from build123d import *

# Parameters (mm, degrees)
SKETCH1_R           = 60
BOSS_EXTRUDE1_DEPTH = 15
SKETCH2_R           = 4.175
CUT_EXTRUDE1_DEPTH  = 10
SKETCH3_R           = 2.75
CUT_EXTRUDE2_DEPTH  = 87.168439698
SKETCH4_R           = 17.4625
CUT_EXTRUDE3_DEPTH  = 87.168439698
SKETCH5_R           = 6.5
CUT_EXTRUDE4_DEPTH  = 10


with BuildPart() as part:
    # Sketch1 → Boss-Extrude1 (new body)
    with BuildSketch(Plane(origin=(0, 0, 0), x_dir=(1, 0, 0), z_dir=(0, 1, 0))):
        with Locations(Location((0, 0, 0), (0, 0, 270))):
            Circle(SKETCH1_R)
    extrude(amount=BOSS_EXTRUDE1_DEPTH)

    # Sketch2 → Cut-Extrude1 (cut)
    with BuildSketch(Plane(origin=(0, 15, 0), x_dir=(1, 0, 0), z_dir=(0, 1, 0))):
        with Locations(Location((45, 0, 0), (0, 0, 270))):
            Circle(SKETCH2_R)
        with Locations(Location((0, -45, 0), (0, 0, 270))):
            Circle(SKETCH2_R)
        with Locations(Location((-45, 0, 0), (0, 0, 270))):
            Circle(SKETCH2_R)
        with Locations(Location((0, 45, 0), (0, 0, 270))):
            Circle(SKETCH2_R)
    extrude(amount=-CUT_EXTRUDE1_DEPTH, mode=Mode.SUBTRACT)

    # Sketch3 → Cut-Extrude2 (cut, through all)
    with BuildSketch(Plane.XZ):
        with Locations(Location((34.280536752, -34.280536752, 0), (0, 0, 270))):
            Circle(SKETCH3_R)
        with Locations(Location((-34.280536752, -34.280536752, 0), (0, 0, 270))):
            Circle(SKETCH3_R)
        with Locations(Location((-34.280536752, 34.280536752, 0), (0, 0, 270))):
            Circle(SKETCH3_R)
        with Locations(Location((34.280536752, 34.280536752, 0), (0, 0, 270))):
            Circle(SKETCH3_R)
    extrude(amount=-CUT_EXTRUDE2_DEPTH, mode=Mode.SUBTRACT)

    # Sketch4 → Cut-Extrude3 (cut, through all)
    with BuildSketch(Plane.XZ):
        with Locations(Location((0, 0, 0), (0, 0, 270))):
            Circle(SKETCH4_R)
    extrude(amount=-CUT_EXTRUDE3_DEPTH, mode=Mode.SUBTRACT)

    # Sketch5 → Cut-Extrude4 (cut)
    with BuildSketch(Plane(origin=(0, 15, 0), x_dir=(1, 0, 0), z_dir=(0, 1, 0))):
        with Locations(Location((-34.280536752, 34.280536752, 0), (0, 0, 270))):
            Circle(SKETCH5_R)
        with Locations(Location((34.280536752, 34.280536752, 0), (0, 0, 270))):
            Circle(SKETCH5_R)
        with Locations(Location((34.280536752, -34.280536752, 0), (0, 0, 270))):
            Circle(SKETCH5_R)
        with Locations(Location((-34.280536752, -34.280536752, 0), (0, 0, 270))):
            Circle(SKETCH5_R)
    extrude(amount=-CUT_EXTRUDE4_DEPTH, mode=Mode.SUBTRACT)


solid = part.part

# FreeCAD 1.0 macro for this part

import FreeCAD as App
import Part
import Sketcher

doc = App.newDocument("Part")
body = doc.addObject("PartDesign::Body", "Body")

# Sketch on XZ plane
sketch1 = body.newObject("Sketcher::SketchObject", "Sketch")
sketch1.AttachmentSupport = (doc.getObject("XZ_Plane"), [""])
sketch1.MapMode = "FlatFace"
sketch1.addGeometry(Part.Circle(App.Vector(0, 0, 0), App.Vector(0, 0, 1), 60), False)
sketch1.addConstraint(Sketcher.Constraint("Coincident", 0, 3, -1, 1))
sketch1.addConstraint(Sketcher.Constraint("Diameter", 0, 120.0))
pad1 = body.newObject("PartDesign::Pad", "Pad")
pad1.Profile = sketch1
pad1.Length = 15
pad1.Reversed = True

# Sketch on XZ plane
sketch2 = body.newObject("Sketcher::SketchObject", "Sketch001")
sketch2.AttachmentSupport = (doc.getObject("XZ_Plane"), [""])
sketch2.MapMode = "FlatFace"
sketch2.AttachmentOffset = App.Placement(App.Vector(0, 0, -15), App.Rotation())
sketch2.addGeometry(Part.Circle(App.Vector(45, 0, 0), App.Vector(0, 0, 1), 4.2), False)
sketch2.addGeometry(Part.Circle(App.Vector(0, 45, 0), App.Vector(0, 0, 1), 4.2), False)
sketch2.addGeometry(Part.Circle(App.Vector(-45, 0, 0), App.Vector(0, 0, 1), 4.2), False)
sketch2.addGeometry(Part.Circle(App.Vector(0, -45, 0), App.Vector(0, 0, 1), 4.2), False)
sketch2.addConstraint(Sketcher.Constraint("Equal", 0, 1))
sketch2.addConstraint(Sketcher.Constraint("Equal", 1, 2))
sketch2.addConstraint(Sketcher.Constraint("Equal", 2, 3))
sketch2.addConstraint(Sketcher.Constraint("Symmetric", 0, 3, 2, 3, -1, 1))
sketch2.addConstraint(Sketcher.Constraint("Symmetric", 1, 3, 3, 3, -1, 1))
sketch2.addConstraint(Sketcher.Constraint("PointOnObject", 0, 3, -1))
sketch2.addConstraint(Sketcher.Constraint("PointOnObject", 1, 3, -2))
sketch2.addConstraint(Sketcher.Constraint("Diameter", 0, 8.35))
sketch2.addConstraint(Sketcher.Constraint("DistanceX", -1, 1, 0, 3, 45.0))
sketch2.addConstraint(Sketcher.Constraint("DistanceY", -1, 1, 1, 3, 45.0))
pocket1 = body.newObject("PartDesign::Pocket", "Pocket")
pocket1.Profile = sketch2
pocket1.Length = 10
pocket1.Reversed = True

# Sketch on XZ plane
sketch3 = body.newObject("Sketcher::SketchObject", "Sketch002")
sketch3.AttachmentSupport = (doc.getObject("XZ_Plane"), [""])
sketch3.MapMode = "FlatFace"
sketch3.addGeometry(Part.Circle(App.Vector(34.3, -34.3, 0), App.Vector(0, 0, 1), 2.8), False)
sketch3.addGeometry(Part.Circle(App.Vector(-34.3, -34.3, 0), App.Vector(0, 0, 1), 2.8), False)
sketch3.addGeometry(Part.Circle(App.Vector(-34.3, 34.3, 0), App.Vector(0, 0, 1), 2.8), False)
sketch3.addGeometry(Part.Circle(App.Vector(34.3, 34.3, 0), App.Vector(0, 0, 1), 2.8), False)
sketch3.addConstraint(Sketcher.Constraint("Equal", 0, 1))
sketch3.addConstraint(Sketcher.Constraint("Equal", 1, 2))
sketch3.addConstraint(Sketcher.Constraint("Equal", 2, 3))
sketch3.addConstraint(Sketcher.Constraint("Symmetric", 0, 3, 2, 3, -1, 1))
sketch3.addConstraint(Sketcher.Constraint("Symmetric", 1, 3, 3, 3, -1, 1))
sketch3.addConstraint(Sketcher.Constraint("Symmetric", 0, 3, 1, 3, -2))
sketch3.addConstraint(Sketcher.Constraint("Diameter", 0, 5.5))
sketch3.addConstraint(Sketcher.Constraint("DistanceX", -1, 1, 0, 3, 34.280537))
sketch3.addConstraint(Sketcher.Constraint("DistanceY", 0, 3, -1, 1, 34.280537))
pocket2 = body.newObject("PartDesign::Pocket", "Pocket001")
pocket2.Profile = sketch3
pocket2.Type = "ThroughAll"

# Sketch on XZ plane
sketch4 = body.newObject("Sketcher::SketchObject", "Sketch003")
sketch4.AttachmentSupport = (doc.getObject("XZ_Plane"), [""])
sketch4.MapMode = "FlatFace"
sketch4.addGeometry(Part.Circle(App.Vector(0, 0, 0), App.Vector(0, 0, 1), 17), False)
sketch4.addConstraint(Sketcher.Constraint("Coincident", 0, 3, -1, 1))
sketch4.addConstraint(Sketcher.Constraint("Diameter", 0, 34.925))
pocket3 = body.newObject("PartDesign::Pocket", "Pocket002")
pocket3.Profile = sketch4
pocket3.Type = "ThroughAll"

# Sketch on XZ plane
sketch5 = body.newObject("Sketcher::SketchObject", "Sketch004")
sketch5.AttachmentSupport = (doc.getObject("XZ_Plane"), [""])
sketch5.MapMode = "FlatFace"
sketch5.AttachmentOffset = App.Placement(App.Vector(0, 0, -15), App.Rotation())
sketch5.addGeometry(Part.Circle(App.Vector(-34, -34, 0), App.Vector(0, 0, 1), 6), False)
sketch5.addGeometry(Part.Circle(App.Vector(34, -34, 0), App.Vector(0, 0, 1), 6), False)
sketch5.addGeometry(Part.Circle(App.Vector(34, 34, 0), App.Vector(0, 0, 1), 6), False)
sketch5.addGeometry(Part.Circle(App.Vector(-34, 34, 0), App.Vector(0, 0, 1), 6), False)
sketch5.addConstraint(Sketcher.Constraint("Equal", 0, 1))
sketch5.addConstraint(Sketcher.Constraint("Equal", 1, 2))
sketch5.addConstraint(Sketcher.Constraint("Equal", 2, 3))
sketch5.addConstraint(Sketcher.Constraint("Symmetric", 0, 3, 2, 3, -1, 1))
sketch5.addConstraint(Sketcher.Constraint("Symmetric", 1, 3, 3, 3, -1, 1))
sketch5.addConstraint(Sketcher.Constraint("Symmetric", 0, 3, 1, 3, -2))
sketch5.addConstraint(Sketcher.Constraint("Diameter", 0, 13.0))
sketch5.addConstraint(Sketcher.Constraint("DistanceX", 0, 3, -1, 1, 34.280537))
sketch5.addConstraint(Sketcher.Constraint("DistanceY", 0, 3, -1, 1, 34.280537))
pocket4 = body.newObject("PartDesign::Pocket", "Pocket003")
pocket4.Profile = sketch5
pocket4.Length = 10
pocket4.Reversed = True

doc.recompute()
